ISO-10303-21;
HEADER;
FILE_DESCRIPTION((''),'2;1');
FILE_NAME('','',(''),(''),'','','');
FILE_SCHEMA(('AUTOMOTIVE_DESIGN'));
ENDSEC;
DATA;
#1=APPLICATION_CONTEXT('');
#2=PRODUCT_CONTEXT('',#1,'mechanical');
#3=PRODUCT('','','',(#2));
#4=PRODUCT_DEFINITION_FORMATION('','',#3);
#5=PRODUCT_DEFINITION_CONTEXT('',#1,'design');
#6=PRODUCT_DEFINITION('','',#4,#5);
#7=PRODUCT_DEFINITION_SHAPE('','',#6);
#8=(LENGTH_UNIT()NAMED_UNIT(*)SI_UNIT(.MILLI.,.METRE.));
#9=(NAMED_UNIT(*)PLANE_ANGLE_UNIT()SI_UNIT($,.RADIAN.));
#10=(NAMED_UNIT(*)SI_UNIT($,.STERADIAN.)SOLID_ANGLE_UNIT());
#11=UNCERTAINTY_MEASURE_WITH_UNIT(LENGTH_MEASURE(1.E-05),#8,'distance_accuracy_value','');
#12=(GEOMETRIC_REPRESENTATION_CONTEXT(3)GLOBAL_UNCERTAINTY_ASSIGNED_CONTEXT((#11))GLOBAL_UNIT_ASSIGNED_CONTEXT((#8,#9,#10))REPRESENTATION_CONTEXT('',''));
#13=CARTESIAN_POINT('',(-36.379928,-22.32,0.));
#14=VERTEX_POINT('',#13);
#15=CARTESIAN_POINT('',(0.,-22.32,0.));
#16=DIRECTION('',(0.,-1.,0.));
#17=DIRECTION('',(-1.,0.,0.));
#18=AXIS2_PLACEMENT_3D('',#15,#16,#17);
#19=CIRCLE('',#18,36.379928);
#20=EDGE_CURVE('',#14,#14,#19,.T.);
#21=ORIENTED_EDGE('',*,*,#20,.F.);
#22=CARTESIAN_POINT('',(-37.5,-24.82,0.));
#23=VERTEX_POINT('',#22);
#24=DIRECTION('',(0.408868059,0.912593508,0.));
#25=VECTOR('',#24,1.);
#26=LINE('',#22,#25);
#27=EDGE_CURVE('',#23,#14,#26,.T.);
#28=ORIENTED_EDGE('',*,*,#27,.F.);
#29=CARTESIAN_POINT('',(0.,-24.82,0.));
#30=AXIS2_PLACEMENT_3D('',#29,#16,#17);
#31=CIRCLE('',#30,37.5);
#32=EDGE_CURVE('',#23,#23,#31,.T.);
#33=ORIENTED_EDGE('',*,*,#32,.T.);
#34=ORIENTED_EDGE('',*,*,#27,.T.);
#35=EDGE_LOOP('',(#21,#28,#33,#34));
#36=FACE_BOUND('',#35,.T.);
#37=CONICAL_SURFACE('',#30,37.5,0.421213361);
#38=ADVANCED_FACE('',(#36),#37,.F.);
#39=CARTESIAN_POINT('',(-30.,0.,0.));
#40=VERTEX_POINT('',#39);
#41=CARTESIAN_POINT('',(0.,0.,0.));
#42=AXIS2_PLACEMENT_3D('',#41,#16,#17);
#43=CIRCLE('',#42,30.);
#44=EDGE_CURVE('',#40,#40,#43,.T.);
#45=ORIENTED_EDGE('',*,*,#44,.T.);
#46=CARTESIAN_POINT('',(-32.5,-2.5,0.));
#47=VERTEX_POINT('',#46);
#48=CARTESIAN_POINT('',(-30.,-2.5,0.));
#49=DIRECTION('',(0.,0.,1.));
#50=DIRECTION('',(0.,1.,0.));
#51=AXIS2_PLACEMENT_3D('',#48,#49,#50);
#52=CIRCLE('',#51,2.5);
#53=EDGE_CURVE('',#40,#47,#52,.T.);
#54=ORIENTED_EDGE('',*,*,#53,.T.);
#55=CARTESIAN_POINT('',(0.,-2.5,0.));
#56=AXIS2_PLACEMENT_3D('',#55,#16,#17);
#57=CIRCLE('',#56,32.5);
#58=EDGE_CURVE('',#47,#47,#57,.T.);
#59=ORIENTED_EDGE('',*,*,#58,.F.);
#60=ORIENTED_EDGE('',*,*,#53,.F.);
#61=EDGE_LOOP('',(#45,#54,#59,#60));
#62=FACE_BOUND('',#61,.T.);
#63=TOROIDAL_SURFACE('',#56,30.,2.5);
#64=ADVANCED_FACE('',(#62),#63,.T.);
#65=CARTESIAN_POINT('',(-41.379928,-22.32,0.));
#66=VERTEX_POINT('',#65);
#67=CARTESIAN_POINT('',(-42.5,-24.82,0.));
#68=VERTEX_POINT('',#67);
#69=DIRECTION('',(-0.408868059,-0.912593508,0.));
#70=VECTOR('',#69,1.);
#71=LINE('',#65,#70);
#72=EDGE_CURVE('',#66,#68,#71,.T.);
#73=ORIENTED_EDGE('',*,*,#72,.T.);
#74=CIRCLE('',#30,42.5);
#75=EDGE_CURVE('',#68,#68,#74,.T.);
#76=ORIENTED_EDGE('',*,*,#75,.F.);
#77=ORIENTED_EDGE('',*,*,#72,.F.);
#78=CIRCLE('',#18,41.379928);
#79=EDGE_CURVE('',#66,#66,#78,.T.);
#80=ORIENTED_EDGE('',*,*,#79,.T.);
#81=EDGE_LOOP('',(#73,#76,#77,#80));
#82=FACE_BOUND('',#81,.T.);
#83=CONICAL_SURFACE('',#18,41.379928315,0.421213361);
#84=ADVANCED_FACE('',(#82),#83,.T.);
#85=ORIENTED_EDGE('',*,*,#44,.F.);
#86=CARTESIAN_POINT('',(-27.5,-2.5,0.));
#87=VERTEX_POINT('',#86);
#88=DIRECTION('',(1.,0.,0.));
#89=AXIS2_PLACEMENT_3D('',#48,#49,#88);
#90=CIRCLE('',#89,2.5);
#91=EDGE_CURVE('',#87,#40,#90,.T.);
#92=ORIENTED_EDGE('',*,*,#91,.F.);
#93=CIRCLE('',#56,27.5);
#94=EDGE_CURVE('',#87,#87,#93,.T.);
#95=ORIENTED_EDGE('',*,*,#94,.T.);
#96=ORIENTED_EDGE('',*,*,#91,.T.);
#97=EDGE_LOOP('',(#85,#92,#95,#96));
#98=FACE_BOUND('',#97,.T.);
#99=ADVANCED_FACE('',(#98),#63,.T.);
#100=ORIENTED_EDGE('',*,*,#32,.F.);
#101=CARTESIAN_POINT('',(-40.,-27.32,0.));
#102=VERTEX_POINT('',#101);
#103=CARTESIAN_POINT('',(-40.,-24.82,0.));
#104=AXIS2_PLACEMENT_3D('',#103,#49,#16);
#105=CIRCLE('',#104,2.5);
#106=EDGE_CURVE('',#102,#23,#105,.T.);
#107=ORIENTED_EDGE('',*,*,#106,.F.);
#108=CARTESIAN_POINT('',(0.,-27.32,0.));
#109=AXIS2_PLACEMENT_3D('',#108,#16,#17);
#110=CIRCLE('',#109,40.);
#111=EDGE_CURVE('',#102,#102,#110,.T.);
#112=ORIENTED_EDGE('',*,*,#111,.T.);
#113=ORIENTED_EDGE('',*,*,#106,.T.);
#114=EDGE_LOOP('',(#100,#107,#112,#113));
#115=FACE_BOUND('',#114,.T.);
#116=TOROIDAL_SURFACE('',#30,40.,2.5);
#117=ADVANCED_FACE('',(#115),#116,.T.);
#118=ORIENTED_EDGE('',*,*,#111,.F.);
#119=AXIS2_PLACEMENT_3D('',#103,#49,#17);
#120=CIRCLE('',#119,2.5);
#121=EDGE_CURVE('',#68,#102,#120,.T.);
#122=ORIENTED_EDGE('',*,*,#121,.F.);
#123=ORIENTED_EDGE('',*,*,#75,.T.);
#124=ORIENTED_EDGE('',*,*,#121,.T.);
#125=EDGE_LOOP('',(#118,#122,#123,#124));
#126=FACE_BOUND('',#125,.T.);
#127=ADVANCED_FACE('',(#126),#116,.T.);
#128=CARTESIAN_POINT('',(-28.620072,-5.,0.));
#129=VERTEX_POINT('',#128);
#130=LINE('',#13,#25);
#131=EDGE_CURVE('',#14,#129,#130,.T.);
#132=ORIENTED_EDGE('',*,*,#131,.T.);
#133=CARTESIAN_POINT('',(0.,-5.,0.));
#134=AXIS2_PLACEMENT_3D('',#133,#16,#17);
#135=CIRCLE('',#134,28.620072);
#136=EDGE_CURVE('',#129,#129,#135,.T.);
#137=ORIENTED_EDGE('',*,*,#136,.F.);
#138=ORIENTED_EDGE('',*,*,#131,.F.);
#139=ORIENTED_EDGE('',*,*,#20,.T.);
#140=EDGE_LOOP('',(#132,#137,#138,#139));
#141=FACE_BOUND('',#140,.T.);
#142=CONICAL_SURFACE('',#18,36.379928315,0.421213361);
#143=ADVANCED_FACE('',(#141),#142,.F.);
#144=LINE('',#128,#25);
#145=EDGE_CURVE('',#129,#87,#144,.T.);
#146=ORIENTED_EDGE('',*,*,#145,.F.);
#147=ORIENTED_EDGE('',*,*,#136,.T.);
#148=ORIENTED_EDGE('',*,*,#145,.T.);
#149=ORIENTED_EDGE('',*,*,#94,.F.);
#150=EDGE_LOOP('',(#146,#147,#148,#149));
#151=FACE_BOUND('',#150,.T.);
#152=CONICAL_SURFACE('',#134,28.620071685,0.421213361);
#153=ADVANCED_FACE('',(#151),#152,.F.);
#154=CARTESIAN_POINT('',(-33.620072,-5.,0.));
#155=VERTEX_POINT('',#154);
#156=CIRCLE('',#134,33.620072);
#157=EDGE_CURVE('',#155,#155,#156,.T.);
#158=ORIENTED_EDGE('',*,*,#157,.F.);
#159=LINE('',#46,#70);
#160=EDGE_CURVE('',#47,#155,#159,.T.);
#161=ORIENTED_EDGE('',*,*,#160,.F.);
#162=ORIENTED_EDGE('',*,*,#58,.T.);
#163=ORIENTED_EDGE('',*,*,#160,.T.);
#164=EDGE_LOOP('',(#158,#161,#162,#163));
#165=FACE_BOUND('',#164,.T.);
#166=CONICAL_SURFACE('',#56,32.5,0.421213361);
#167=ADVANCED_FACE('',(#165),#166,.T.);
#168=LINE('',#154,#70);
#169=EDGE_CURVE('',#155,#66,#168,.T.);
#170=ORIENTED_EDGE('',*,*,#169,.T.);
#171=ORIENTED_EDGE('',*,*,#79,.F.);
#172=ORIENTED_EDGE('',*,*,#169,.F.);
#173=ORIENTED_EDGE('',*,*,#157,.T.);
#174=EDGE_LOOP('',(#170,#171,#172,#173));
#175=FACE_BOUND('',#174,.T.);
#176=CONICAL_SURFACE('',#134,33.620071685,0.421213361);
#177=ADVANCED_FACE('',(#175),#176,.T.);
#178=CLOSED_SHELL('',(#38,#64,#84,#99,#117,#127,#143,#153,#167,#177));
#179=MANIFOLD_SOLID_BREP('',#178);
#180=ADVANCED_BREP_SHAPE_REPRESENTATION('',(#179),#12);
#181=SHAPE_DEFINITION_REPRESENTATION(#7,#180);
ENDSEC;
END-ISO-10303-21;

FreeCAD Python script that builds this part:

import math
import FreeCAD as App
import Part
import Sketcher

V = App.Vector

doc = App.newDocument("Part")
params = doc.addObject("Spreadsheet::Sheet", "Params")
for row, (alias, value) in enumerate([
    ("sketch1_radius", "2.5 mm"),
    ("revolution_angle", "360 deg"),
], start=1):
    params.set(f"A{row}", alias)
    params.set(f"B{row}", "=" + value)
    params.setAlias(f"B{row}", alias)

body = doc.addObject("PartDesign::Body", "Body")

sketch1 = body.newObject("Sketcher::SketchObject", "Sketch")
sketch1.AttachmentSupport = (doc.getObject("XY_Plane"), [""])
sketch1.MapMode = "FlatFace"
sketch1.addGeometry(Part.ArcOfCircle(Part.Circle(V(-30, -2.5, 0), V(0, 0, 1), 2.5), math.radians(0), math.radians(90)), False)
sketch1.addGeometry(Part.ArcOfCircle(Part.Circle(V(-30, -2.5, 0), V(0, 0, 1), 2.5), math.radians(90), math.radians(180)), False)
sketch1.addGeometry(Part.LineSegment(V(-32.5, -2.5, 0), V(-33.6, -5, 0)), False)
sketch1.addGeometry(Part.LineSegment(V(-33.6, -5, 0), V(-41.4, -22.3, 0)), False)
sketch1.addGeometry(Part.LineSegment(V(-41.4, -22.3, 0), V(-42.5, -24.8, 0)), False)
sketch1.addGeometry(Part.ArcOfCircle(Part.Circle(V(-40, -24.8, 0), V(0, 0, 1), 2.5), math.radians(180), math.radians(270)), False)
sketch1.addGeometry(Part.ArcOfCircle(Part.Circle(V(-40, -24.8, 0), V(0, 0, 1), 2.5), math.radians(-90), math.radians(0)), False)
sketch1.addGeometry(Part.LineSegment(V(-37.5, -24.8, 0), V(-36.4, -22.3, 0)), False)
sketch1.addGeometry(Part.LineSegment(V(-36.4, -22.3, 0), V(-28.6, -5, 0)), False)
sketch1.addGeometry(Part.LineSegment(V(-28.6, -5, 0), V(-27.5, -2.5, 0)), False)
sketch1.addConstraint(Sketcher.Constraint("Tangent", 0, 2, 1, 1))
sketch1.addConstraint(Sketcher.Constraint("Coincident", 1, 2, 2, 1))
sketch1.addConstraint(Sketcher.Constraint("Coincident", 2, 2, 3, 1))
sketch1.addConstraint(Sketcher.Constraint("Coincident", 3, 2, 4, 1))
sketch1.addConstraint(Sketcher.Constraint("Coincident", 4, 2, 5, 1))
sketch1.addConstraint(Sketcher.Constraint("Tangent", 5, 2, 6, 1))
sketch1.addConstraint(Sketcher.Constraint("Coincident", 6, 2, 7, 1))
sketch1.addConstraint(Sketcher.Constraint("Coincident", 7, 2, 8, 1))
sketch1.addConstraint(Sketcher.Constraint("Coincident", 8, 2, 9, 1))
sketch1.addConstraint(Sketcher.Constraint("Coincident", 9, 2, 0, 1))
sketch1.addConstraint(Sketcher.Constraint("Equal", 0, 1))
sketch1.addConstraint(Sketcher.Constraint("Equal", 1, 5))
sketch1.addConstraint(Sketcher.Constraint("Equal", 5, 6))
sketch1.addConstraint(Sketcher.Constraint("PointOnObject", 0, 2, -1))
sketch1.addConstraint(Sketcher.Constraint("Parallel", 2, 3))
sketch1.addConstraint(Sketcher.Constraint("Parallel", 3, 4))
sketch1.addConstraint(Sketcher.Constraint("Parallel", 4, 7))
sketch1.addConstraint(Sketcher.Constraint("Parallel", 7, 8))
sketch1.addConstraint(Sketcher.Constraint("Parallel", 8, 9))
sketch1.addConstraint(Sketcher.Constraint("Horizontal", 0, 3, 1, 2))
sketch1.addConstraint(Sketcher.Constraint("Horizontal", 6, 3, 4, 2))
sketch1.addConstraint(Sketcher.Constraint("Horizontal", 4, 2, 6, 2))
sketch1.addConstraint(Sketcher.Constraint("Horizontal", 3, 2, 7, 2))
sketch1.addConstraint(Sketcher.Constraint("Horizontal", 2, 2, 8, 2))
sketch1.addConstraint(Sketcher.Constraint("Vertical", 1, 3, 0, 2))
sketch1.addConstraint(Sketcher.Constraint("Vertical", 6, 3, 5, 2))
sketch1.addConstraint(Sketcher.Constraint("Equal", 2, 4))
sketch1.addConstraint(Sketcher.Constraint("Radius", 0, 2.5))
sketch1.addConstraint(Sketcher.Constraint("DistanceX", 0, 3, -1, 1, 30.0))
sketch1.addConstraint(Sketcher.Constraint("DistanceX", 5, 3, -1, 1, 40.0))
sketch1.addConstraint(Sketcher.Constraint("DistanceY", 2, 2, -1, 1, 5.0))
sketch1.addConstraint(Sketcher.Constraint("DistanceY", 5, 3, -1, 1, 24.82))
sketch1.setExpression("Constraints[27]", "Params.sketch1_radius")
revolution = body.newObject("PartDesign::Revolution", "Revolution")
revolution.Profile = sketch1
revolution.ReferenceAxis = (sketch1, ["V_Axis"])
revolution.setExpression("Angle", "Params.revolution_angle")

doc.recompute()
